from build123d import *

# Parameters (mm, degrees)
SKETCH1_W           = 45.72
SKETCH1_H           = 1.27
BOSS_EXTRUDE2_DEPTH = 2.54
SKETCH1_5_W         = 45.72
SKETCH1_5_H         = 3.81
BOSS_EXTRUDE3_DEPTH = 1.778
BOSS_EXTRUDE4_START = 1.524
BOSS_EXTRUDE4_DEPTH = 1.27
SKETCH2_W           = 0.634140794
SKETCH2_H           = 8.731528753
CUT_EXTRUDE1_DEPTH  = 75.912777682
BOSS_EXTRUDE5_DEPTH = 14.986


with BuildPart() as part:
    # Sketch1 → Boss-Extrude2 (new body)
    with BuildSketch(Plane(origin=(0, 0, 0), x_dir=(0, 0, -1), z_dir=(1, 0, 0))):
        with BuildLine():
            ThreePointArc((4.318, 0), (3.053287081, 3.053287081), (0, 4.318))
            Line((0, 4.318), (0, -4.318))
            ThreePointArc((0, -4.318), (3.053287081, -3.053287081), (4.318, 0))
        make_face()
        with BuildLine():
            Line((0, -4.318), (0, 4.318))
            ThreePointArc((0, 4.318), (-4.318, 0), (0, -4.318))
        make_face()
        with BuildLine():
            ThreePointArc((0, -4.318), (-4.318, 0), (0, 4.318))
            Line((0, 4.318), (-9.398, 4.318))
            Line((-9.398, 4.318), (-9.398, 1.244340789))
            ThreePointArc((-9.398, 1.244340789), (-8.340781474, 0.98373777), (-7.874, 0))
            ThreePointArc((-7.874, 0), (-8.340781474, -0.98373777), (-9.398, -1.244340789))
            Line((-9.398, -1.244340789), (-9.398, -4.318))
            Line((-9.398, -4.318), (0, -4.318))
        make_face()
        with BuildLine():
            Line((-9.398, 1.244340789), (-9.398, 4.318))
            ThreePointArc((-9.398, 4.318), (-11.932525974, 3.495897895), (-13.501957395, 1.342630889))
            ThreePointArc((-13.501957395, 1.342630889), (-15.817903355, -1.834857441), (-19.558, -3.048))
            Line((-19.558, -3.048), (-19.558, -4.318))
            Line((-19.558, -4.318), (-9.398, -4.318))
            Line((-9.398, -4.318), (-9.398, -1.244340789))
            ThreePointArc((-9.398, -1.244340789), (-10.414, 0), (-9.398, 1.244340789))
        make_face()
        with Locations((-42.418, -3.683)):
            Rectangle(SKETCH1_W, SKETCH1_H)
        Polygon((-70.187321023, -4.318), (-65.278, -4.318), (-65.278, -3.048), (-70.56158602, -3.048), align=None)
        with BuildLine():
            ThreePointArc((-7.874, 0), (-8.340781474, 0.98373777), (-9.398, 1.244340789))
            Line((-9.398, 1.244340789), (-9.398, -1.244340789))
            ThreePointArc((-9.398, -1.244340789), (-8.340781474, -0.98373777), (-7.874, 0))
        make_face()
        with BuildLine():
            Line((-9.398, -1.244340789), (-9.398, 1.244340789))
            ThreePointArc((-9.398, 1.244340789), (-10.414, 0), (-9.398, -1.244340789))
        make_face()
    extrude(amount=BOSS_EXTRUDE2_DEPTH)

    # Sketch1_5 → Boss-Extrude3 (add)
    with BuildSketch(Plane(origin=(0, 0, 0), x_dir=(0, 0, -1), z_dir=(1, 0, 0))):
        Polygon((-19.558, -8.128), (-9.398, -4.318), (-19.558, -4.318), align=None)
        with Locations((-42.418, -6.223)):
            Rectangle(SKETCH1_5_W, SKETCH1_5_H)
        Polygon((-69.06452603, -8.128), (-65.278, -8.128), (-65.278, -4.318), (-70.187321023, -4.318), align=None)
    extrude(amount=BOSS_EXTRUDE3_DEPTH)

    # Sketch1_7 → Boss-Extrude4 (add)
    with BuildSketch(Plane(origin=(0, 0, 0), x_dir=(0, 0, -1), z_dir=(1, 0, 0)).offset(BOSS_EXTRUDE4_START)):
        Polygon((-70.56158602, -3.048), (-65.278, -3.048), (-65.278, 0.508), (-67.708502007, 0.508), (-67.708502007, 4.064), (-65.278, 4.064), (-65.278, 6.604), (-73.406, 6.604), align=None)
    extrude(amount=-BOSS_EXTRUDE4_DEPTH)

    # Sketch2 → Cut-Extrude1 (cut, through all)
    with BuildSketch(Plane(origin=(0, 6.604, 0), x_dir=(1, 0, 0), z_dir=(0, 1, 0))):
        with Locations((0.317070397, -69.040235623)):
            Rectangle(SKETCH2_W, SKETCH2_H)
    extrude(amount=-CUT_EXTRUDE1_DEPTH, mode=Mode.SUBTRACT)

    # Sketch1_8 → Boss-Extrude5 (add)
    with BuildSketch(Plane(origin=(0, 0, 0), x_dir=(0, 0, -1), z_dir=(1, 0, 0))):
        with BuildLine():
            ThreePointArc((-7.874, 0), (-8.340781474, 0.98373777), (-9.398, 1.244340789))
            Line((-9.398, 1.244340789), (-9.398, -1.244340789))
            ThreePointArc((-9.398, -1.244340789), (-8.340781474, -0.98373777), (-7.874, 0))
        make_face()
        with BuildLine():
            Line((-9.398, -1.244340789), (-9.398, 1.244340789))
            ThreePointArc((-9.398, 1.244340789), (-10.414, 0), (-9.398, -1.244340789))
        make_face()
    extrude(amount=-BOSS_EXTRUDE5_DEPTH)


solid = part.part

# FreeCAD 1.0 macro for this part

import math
import FreeCAD as App
import Part
import Sketcher

V = App.Vector
Q = App.Units.Quantity


def add_polygon(sketch, points):
    """Adds a closed chain of lines whose ends are joined by coincident constraints."""
    first, n = sketch.GeometryCount, len(points)
    for a, b in zip(points, points[1:] + points[:1]):
        sketch.addGeometry(Part.LineSegment(App.Vector(*a, 0), App.Vector(*b, 0)), False)
    for i in range(n):
        sketch.addConstraint(Sketcher.Constraint("Coincident", first + i, 2, first + (i + 1) % n, 1))

doc = App.newDocument("Part")
body = doc.addObject("PartDesign::Body", "Body")

sketch1 = body.newObject("Sketcher::SketchObject", "Sketch")
sketch1.AttachmentSupport = (doc.getObject("YZ_Plane"), [""])
sketch1.MapMode = "FlatFace"
sketch1.addGeometry([
    Part.ArcOfCircle(Part.Circle(V(0, 0, 0), V(0, 0, 1), 4.3), math.radians(-90), math.radians(0)),
    Part.LineSegment(V(4.3, 0, 0), V(4.3, 9.4, 0)),
    Part.ArcOfCircle(Part.Circle(V(0, 9.4, 0), V(0, 0, 1), 4.3), math.radians(0), math.radians(72)),
    Part.ArcOfCircle(Part.Circle(V(3.3, 19.6, 0), V(0, 0, 1), 6.4), math.radians(180), math.radians(252)),
    Part.LineSegment(V(-3, 19.6, 0), V(-3, 70.6, 0)),
    Part.LineSegment(V(-3, 70.6, 0), V(-4.3, 70.2, 0)),
    Part.LineSegment(V(-4.3, 70.2, 0), V(-4.3, 0, 0)),
    Part.ArcOfCircle(Part.Circle(V(0, 0, 0), V(0, 0, 1), 4.3), math.radians(-180), math.radians(-90)),
], False)
sketch1.addConstraint([
    Sketcher.Constraint("Tangent", 0, 2, 1, 1),
    Sketcher.Constraint("Tangent", 1, 2, 2, 1),
    Sketcher.Constraint("Tangent", 2, 2, 3, 2),
    Sketcher.Constraint("Tangent", 3, 1, 4, 1),
    Sketcher.Constraint("Coincident", 4, 2, 5, 1),
    Sketcher.Constraint("Coincident", 5, 2, 6, 1),
    Sketcher.Constraint("Tangent", 6, 2, 7, 1),
    Sketcher.Constraint("Tangent", 7, 2, 0, 1),
    Sketcher.Constraint("Vertical", 1),
    Sketcher.Constraint("Vertical", 4),
    Sketcher.Constraint("Vertical", 6),
    Sketcher.Constraint("Coincident", 0, 3, -1, 1),
    Sketcher.Constraint("Equal", 0, 2),
    Sketcher.Constraint("Equal", 2, 7),
    Sketcher.Constraint("PointOnObject", 7, 2, -2),
    Sketcher.Constraint("Radius", 0, Q("0.17 in")),
    Sketcher.Constraint("DistanceY", 1, 1, 1, 2, Q("0.37 in")),
    Sketcher.Constraint("DistanceY", 2, 3, 3, 3, Q("0.4 in")),
    Sketcher.Constraint("DistanceX", 3, 1, -1, 1, Q("0.12 in")),
    Sketcher.Constraint("Distance", 5, Q("1.323999 mm")),
    Sketcher.Constraint("DistanceY", 6, 2, 6, 1, Q("70.187321 mm")),
])
pad1 = body.newObject("PartDesign::Pad", "Pad")
pad1.Profile = sketch1
pad1.Length = Q("0.1 in")

sketch2 = body.newObject("Sketcher::SketchObject", "Sketch001")
sketch2.AttachmentSupport = (doc.getObject("YZ_Plane"), [""])
sketch2.MapMode = "FlatFace"
add_polygon(sketch2, [(-8.1, 19.6), (-4.3, 9.4), (-4.3, 70.2), (-8.1, 69.1)])
sketch2.addConstraint([
    Sketcher.Constraint("Vertical", 1),
    Sketcher.Constraint("Vertical", 3),
    Sketcher.Constraint("DistanceY", 0, 2, 3, 2, Q("0.4 in")),
    Sketcher.Constraint("DistanceX", 0, 2, -1, 1, Q("0.17 in")),
    Sketcher.Constraint("DistanceY", -1, 1, 0, 2, Q("0.37 in")),
    Sketcher.Constraint("DistanceX", 2, 2, -1, 1, Q("0.32 in")),
    Sketcher.Constraint("Distance", 2, Q("3.971998 mm")),
    Sketcher.Constraint("DistanceY", 1, 1, 1, 2, Q("60.789321 mm")),
])
pad2 = body.newObject("PartDesign::Pad", "Pad001")
pad2.Profile = sketch2
pad2.Length = Q("0.07 in")

sketch3 = body.newObject("Sketcher::SketchObject", "Sketch002")
sketch3.AttachmentSupport = (doc.getObject("YZ_Plane"), [""])
sketch3.MapMode = "FlatFace"
sketch3.AttachmentOffset = App.Placement(V(0, 0, 0.06 * 25.4), App.Rotation())
add_polygon(sketch3, [(-3, 70.6), (-3, 65.3), (0.5, 65.3), (0.5, 67.7), (4.1, 67.7), (4.1, 65.3), (6.6, 65.3), (6.6, 73.4)])
sketch3.addConstraint([
    Sketcher.Constraint("Vertical", 0),
    Sketcher.Constraint("Horizontal", 1),
    Sketcher.Constraint("Vertical", 2),
    Sketcher.Constraint("Horizontal", 3),
    Sketcher.Constraint("Vertical", 4),
    Sketcher.Constraint("Horizontal", 5),
    Sketcher.Constraint("Vertical", 6),
    Sketcher.Constraint("Horizontal", 1, 2, 4, 2),
    Sketcher.Constraint("Equal", 1, 3),
    Sketcher.Constraint("DistanceX", 5, 1, 5, 2, Q("0.1 in")),
    Sketcher.Constraint("DistanceX", 1, 1, 1, 2, Q("0.14 in")),
    Sketcher.Constraint("DistanceY", 6, 1, 6, 2, Q("0.32 in")),
    Sketcher.Constraint("DistanceX", 0, 2, -1, 1, Q("0.12 in")),
    Sketcher.Constraint("DistanceY", -1, 1, 0, 2, Q("2.57 in")),
    Sketcher.Constraint("DistanceY", 0, 2, 0, 1, Q("5.283586 mm")),
    Sketcher.Constraint("DistanceY", 2, 1, 2, 2, Q("2.430502 mm")),
])
pad3 = body.newObject("PartDesign::Pad", "Pad002")
pad3.Profile = sketch3
pad3.Length = Q("0.05 in")
pad3.Reversed = True

sketch4 = body.newObject("Sketcher::SketchObject", "Sketch003")
sketch4.AttachmentSupport = (doc.getObject("XZ_Plane"), [""])
sketch4.MapMode = "FlatFace"
sketch4.AttachmentOffset = App.Placement(V(0, 0, -0.26 * 25.4), App.Rotation())
add_polygon(sketch4, [(0, 64.7), (0, 73.4), (0.6, 73.4), (0.6, 64.7)])
sketch4.addConstraint([
    Sketcher.Constraint("Vertical", 0),
    Sketcher.Constraint("Horizontal", 1),
    Sketcher.Constraint("Vertical", 2),
    Sketcher.Constraint("Horizontal", 3),
    Sketcher.Constraint("PointOnObject", 0, 2, -2),
    Sketcher.Constraint("DistanceY", -1, 1, 0, 2, Q("2.89 in")),
    Sketcher.Constraint("DistanceX", 1, 1, 1, 2, Q("0.634141 mm")),
    Sketcher.Constraint("DistanceY", 0, 1, 0, 2, Q("8.731529 mm")),
])
pocket1 = body.newObject("PartDesign::Pocket", "Pocket")
pocket1.Profile = sketch4
pocket1.Type = "ThroughAll"
pocket1.Reversed = True

sketch5 = body.newObject("Sketcher::SketchObject", "Sketch004")
sketch5.AttachmentSupport = (doc.getObject("YZ_Plane"), [""])
sketch5.MapMode = "FlatFace"
sketch5.addGeometry([
    Part.ArcOfCircle(Part.Circle(V(0, 9.1, 0), V(0, 0, 1), 1.3), math.radians(-90), math.radians(12)),
    Part.ArcOfCircle(Part.Circle(V(0, 9.1, 0), V(0, 0, 1), 1.3), math.radians(12), math.radians(168)),
    Part.ArcOfCircle(Part.Circle(V(0, 9.1, 0), V(0, 0, 1), 1.3), math.radians(168), math.radians(270)),
], False)
sketch5.addConstraint([
    Sketcher.Constraint("Tangent", 0, 2, 1, 1),
    Sketcher.Constraint("Tangent", 1, 2, 2, 1),
    Sketcher.Constraint("Tangent", 2, 2, 0, 1),
    Sketcher.Constraint("Symmetric", 0, 2, 1, 2, -2),
    Sketcher.Constraint("PointOnObject", 2, 2, -2),
    Sketcher.Constraint("Radius", 0, Q("0.05 in")),
    Sketcher.Constraint("DistanceY", -1, 1, 0, 3, Q("0.36 in")),
    Sketcher.Constraint("DistanceY", -1, 1, 0, 2, Q("0.37 in")),
])
pad4 = body.newObject("PartDesign::Pad", "Pad003")
pad4.Profile = sketch5
pad4.Length = Q("0.59 in")
pad4.Reversed = True

doc.recompute()
